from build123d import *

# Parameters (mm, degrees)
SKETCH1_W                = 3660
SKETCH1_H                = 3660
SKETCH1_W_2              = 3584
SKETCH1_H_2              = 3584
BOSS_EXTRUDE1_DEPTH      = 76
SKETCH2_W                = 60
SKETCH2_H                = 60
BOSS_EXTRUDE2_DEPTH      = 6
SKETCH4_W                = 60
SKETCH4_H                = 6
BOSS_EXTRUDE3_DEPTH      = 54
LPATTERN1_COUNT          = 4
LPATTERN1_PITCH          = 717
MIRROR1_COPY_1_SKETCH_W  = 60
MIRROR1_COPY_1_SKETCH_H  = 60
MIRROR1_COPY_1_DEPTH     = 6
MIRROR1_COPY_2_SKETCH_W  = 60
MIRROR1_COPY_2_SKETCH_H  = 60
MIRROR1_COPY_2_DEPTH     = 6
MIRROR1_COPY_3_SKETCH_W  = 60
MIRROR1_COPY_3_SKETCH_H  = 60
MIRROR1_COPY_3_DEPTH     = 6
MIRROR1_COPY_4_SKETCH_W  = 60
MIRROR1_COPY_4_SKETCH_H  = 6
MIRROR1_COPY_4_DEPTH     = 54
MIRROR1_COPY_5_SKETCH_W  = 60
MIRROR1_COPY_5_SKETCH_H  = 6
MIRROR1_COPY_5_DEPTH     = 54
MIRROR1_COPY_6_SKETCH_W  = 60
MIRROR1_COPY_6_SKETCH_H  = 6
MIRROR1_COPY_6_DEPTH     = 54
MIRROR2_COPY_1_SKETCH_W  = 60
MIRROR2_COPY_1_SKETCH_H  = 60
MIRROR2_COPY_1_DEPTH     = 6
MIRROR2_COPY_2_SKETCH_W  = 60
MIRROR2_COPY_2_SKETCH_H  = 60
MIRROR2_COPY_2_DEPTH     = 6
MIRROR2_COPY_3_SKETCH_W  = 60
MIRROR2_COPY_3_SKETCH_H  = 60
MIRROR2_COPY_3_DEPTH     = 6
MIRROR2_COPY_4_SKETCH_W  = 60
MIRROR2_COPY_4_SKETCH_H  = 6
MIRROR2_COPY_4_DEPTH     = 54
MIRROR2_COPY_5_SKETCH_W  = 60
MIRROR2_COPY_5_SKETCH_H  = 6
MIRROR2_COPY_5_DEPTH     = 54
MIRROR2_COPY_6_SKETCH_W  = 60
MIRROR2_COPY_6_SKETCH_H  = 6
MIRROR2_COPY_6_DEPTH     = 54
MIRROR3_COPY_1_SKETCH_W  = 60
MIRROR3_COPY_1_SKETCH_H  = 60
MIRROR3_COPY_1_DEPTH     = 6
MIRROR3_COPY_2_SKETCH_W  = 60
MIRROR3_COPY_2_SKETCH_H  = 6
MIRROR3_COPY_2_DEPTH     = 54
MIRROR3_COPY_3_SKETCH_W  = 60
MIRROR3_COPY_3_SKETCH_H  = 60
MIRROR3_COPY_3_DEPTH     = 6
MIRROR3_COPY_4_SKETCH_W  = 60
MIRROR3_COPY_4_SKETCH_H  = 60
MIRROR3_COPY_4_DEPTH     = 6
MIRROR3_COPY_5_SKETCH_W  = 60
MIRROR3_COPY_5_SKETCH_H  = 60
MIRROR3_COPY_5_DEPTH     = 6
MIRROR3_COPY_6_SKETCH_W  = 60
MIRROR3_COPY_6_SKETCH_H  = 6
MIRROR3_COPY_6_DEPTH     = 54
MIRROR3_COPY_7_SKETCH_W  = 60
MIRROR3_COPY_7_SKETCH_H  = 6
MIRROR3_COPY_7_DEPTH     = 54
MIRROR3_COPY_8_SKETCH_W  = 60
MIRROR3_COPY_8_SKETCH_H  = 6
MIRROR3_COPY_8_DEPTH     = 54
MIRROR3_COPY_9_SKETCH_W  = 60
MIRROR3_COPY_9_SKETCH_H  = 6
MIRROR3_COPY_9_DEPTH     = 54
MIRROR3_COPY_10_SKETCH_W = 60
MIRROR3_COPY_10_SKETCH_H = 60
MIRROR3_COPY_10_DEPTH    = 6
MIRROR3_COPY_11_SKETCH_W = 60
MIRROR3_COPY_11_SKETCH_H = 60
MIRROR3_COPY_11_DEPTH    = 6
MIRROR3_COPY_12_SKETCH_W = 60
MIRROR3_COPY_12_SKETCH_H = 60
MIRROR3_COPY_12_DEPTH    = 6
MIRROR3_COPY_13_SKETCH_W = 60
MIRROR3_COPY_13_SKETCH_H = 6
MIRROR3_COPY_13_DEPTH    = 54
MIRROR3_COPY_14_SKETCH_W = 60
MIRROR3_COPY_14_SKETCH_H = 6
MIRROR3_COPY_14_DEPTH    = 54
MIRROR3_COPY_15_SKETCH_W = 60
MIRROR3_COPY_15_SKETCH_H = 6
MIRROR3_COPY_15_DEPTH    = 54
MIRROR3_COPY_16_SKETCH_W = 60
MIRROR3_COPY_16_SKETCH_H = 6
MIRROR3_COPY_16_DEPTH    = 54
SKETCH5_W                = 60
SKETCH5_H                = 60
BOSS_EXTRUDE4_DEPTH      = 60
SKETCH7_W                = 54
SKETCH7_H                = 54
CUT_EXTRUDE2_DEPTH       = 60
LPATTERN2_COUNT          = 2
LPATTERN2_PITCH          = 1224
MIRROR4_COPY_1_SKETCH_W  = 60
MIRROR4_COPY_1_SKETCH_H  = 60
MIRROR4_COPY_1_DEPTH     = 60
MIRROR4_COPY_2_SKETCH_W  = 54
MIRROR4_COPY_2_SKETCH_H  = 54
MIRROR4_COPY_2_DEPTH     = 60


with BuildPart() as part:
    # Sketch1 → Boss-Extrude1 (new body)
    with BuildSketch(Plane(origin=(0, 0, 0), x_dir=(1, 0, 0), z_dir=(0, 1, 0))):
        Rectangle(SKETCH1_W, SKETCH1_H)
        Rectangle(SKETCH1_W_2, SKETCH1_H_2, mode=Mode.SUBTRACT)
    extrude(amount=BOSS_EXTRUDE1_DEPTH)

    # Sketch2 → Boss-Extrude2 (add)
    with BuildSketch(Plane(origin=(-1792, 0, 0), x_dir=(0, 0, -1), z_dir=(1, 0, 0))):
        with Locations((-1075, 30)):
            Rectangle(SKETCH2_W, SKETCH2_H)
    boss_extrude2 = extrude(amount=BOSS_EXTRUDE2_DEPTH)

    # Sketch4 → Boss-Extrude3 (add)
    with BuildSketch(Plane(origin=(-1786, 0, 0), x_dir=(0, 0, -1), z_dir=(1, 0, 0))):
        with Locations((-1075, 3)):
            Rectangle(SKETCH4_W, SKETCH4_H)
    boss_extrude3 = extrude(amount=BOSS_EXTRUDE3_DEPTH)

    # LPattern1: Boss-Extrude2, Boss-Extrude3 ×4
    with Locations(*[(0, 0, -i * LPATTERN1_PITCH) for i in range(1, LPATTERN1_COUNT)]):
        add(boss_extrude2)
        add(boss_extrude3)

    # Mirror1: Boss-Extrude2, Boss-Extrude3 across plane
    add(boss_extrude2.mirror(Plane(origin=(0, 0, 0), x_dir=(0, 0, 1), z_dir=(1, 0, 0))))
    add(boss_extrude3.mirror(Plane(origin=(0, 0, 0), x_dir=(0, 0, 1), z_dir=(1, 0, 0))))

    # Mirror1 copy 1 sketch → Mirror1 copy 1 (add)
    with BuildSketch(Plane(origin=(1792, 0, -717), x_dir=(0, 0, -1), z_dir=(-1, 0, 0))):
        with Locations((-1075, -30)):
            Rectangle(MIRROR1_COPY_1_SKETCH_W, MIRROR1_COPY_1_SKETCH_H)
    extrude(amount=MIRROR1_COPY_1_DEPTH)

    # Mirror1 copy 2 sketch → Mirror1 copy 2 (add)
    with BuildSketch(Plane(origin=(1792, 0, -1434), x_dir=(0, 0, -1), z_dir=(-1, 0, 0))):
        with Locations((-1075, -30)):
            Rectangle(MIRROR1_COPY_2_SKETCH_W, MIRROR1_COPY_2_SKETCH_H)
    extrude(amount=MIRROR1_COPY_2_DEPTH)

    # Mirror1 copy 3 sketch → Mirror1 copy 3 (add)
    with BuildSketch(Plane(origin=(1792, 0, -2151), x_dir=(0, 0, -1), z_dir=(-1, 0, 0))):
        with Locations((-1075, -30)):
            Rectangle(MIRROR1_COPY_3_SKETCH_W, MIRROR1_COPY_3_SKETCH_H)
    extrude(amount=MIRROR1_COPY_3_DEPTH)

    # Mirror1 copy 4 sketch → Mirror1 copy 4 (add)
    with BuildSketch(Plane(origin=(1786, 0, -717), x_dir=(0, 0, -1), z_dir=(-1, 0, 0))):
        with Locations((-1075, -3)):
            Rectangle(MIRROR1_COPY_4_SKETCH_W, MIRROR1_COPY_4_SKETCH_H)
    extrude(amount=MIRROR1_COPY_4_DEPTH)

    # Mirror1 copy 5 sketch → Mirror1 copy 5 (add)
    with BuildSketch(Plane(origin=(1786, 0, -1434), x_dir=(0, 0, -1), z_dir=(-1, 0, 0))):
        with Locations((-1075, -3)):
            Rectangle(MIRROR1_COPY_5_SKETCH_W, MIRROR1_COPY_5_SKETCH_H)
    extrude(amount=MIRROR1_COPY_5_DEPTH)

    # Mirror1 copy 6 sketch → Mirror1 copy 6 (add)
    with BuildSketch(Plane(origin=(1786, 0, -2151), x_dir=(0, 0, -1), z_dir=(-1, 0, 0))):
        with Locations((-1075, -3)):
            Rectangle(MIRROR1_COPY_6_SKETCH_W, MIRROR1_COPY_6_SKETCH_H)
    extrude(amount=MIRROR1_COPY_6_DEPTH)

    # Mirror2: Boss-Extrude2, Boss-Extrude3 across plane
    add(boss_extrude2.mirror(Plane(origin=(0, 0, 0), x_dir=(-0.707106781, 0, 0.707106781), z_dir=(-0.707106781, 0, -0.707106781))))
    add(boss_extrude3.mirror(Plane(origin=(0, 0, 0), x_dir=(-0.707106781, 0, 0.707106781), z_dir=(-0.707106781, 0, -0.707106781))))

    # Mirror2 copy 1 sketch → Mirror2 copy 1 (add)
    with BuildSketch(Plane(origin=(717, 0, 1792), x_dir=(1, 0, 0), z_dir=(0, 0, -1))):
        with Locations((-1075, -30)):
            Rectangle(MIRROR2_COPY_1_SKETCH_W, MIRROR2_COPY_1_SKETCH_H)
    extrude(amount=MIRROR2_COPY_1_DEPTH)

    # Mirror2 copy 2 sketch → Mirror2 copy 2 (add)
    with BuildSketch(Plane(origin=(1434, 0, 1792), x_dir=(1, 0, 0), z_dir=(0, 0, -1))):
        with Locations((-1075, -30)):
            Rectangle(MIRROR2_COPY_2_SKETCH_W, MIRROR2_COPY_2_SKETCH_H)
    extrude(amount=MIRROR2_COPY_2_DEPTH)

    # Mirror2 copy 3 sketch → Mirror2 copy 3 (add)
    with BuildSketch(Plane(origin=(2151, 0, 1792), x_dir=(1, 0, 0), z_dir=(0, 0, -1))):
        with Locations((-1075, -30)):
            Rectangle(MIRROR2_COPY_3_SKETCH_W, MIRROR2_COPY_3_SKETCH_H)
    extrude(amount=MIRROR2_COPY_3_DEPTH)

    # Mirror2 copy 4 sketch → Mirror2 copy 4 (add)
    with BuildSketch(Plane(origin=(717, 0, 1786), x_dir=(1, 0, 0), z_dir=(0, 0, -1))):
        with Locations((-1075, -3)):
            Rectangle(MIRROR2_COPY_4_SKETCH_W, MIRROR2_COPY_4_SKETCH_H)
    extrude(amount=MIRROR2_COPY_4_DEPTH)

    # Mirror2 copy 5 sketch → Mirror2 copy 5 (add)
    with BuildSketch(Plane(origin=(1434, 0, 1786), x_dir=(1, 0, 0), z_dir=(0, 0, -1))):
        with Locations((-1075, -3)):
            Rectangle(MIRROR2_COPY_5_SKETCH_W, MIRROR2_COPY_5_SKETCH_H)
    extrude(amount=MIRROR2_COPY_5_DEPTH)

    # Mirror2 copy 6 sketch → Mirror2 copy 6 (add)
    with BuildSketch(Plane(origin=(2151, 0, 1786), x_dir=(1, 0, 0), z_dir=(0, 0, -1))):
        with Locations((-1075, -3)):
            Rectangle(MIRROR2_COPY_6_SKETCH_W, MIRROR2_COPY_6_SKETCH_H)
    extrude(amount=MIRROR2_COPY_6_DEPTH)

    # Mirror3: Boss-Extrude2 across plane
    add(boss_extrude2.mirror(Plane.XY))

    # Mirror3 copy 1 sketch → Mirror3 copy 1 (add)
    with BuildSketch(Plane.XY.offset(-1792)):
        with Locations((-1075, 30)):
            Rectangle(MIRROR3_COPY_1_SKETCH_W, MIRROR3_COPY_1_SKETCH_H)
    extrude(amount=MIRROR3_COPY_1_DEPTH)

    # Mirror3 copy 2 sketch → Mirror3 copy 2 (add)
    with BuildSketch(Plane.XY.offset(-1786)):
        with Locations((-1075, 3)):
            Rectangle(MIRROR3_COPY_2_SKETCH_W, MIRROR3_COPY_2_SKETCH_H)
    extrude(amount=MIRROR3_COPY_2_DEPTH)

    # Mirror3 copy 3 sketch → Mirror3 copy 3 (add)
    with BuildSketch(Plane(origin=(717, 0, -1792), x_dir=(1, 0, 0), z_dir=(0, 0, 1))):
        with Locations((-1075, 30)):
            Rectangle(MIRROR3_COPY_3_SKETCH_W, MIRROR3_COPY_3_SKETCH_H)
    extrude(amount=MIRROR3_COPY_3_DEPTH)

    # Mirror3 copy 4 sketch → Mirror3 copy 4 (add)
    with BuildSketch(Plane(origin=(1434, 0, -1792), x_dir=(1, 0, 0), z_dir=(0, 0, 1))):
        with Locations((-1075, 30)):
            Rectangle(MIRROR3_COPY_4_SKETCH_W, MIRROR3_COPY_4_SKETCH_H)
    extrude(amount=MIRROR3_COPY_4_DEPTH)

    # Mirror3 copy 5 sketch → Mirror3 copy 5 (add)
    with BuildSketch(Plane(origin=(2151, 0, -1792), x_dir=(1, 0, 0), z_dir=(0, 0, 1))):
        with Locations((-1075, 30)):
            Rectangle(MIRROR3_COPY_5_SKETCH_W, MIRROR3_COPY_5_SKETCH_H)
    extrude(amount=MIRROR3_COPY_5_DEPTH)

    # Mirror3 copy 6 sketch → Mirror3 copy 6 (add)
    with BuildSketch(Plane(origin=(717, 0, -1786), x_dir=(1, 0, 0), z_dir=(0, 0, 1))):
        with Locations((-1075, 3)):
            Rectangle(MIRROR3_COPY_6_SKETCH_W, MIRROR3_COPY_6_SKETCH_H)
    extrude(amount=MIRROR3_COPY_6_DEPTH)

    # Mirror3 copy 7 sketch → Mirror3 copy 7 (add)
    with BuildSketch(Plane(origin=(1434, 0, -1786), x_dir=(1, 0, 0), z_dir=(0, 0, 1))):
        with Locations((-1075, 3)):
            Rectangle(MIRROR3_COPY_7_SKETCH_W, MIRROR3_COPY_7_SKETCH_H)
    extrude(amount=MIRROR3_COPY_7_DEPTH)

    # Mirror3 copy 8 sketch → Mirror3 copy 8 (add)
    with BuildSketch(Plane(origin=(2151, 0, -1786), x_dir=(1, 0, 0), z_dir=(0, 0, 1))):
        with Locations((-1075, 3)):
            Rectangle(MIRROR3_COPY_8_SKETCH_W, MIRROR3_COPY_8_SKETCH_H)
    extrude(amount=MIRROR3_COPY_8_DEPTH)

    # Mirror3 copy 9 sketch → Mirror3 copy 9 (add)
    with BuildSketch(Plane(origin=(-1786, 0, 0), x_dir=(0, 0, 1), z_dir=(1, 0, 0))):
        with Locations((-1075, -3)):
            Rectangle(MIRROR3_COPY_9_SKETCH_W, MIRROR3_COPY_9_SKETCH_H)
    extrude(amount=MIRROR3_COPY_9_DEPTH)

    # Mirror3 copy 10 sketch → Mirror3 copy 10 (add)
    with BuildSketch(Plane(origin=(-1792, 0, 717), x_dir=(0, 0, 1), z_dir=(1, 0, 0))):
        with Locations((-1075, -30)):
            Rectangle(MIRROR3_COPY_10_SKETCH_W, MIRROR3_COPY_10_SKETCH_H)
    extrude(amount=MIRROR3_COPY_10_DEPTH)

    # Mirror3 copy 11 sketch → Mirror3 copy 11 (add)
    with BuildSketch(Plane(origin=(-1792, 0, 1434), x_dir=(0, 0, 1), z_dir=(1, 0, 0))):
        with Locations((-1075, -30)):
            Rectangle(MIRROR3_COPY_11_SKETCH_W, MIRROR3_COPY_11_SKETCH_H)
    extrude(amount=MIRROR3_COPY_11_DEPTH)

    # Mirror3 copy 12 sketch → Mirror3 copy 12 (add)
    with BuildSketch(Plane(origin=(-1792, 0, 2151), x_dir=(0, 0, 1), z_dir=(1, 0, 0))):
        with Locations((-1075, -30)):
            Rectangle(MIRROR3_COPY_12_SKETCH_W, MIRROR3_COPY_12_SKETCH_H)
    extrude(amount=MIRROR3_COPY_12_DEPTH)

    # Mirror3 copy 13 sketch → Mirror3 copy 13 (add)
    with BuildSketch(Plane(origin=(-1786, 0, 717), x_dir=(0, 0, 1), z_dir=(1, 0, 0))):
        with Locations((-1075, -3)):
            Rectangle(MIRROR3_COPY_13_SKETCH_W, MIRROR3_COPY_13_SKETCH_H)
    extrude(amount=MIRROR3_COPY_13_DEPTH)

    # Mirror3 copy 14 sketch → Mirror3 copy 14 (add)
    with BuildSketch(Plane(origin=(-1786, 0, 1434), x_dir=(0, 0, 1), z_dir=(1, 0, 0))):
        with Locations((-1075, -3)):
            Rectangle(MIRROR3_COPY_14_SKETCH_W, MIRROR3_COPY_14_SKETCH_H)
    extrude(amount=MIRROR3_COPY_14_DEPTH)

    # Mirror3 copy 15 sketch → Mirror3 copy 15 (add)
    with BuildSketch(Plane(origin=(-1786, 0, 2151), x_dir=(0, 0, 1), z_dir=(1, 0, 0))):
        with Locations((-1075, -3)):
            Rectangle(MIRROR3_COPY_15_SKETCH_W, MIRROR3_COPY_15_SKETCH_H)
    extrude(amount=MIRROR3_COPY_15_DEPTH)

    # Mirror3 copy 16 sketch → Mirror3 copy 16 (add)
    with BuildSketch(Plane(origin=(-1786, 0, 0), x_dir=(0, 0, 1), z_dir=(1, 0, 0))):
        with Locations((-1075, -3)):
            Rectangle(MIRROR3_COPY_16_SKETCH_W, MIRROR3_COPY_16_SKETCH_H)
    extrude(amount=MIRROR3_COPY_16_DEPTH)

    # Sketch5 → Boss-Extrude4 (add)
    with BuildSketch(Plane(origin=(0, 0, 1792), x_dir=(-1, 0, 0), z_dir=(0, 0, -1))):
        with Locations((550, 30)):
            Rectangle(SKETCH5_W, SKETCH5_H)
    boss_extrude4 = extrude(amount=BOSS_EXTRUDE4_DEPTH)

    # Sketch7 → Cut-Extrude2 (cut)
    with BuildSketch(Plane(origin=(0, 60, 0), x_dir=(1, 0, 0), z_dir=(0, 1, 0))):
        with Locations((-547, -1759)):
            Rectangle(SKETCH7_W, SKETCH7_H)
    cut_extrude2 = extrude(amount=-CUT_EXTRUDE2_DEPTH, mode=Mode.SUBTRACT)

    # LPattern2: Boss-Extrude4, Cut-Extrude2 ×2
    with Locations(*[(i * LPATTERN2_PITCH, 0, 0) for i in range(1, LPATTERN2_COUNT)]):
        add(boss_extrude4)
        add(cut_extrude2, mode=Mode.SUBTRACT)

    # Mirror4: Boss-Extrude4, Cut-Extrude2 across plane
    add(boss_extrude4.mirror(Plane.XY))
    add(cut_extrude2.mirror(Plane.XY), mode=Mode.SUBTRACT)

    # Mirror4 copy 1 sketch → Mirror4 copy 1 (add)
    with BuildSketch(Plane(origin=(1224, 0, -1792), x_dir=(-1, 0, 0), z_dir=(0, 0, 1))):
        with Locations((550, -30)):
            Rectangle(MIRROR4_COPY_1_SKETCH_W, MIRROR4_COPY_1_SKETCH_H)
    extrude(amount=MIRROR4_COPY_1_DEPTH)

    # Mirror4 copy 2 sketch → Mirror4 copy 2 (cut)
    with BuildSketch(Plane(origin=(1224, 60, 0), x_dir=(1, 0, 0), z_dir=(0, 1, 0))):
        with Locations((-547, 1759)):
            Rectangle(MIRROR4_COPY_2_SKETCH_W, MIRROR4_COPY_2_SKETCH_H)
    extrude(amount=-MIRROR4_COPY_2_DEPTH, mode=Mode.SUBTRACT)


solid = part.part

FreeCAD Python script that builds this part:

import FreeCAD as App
import Part
import Sketcher
from FreeCAD import Vector
Q = App.Units.Quantity


def add_polygon(sketch, points):
    """Adds a closed chain of lines whose ends are joined by coincident constraints."""
    first, n = sketch.GeometryCount, len(points)
    for a, b in zip(points, points[1:] + points[:1]):
        sketch.addGeometry(Part.LineSegment(App.Vector(*a, 0), App.Vector(*b, 0)), False)
    for i in range(n):
        sketch.addConstraint(Sketcher.Constraint("Coincident", first + i, 2, first + (i + 1) % n, 1))

doc = App.newDocument("Part")
body = doc.addObject("PartDesign::Body", "Body")

sketch1 = doc.addObject("Sketcher::SketchObject", "Sketch")
body.addObject(sketch1)
sketch1.AttachmentSupport = (doc.XZ_Plane, [""])
sketch1.MapMode = "FlatFace"
add_polygon(sketch1, [(-1830, -1830), (-1830, 1830), (1830, 1830), (1830, -1830)])
add_polygon(sketch1, [(1792, 1792), (-1792, 1792), (-1792, -1792), (1792, -1792)])
sketch1.addConstraint(Sketcher.Constraint("Vertical", 0))
sketch1.addConstraint(Sketcher.Constraint("Horizontal", 1))
sketch1.addConstraint(Sketcher.Constraint("Vertical", 2))
sketch1.addConstraint(Sketcher.Constraint("Horizontal", 3))
sketch1.addConstraint(Sketcher.Constraint("Horizontal", 4))
sketch1.addConstraint(Sketcher.Constraint("Vertical", 5))
sketch1.addConstraint(Sketcher.Constraint("Horizontal", 6))
sketch1.addConstraint(Sketcher.Constraint("Vertical", 7))
sketch1.addConstraint(Sketcher.Constraint("Symmetric", 0, 2, 2, 2, -1, 1))
sketch1.addConstraint(Sketcher.Constraint("Symmetric", 4, 2, 6, 2, -1, 1))
sketch1.addConstraint(Sketcher.Constraint("Equal", 3, 0))
sketch1.addConstraint(Sketcher.Constraint("Equal", 6, 5))
sketch1.addConstraint(Sketcher.Constraint("DistanceX", 1, 1, 1, 2, Q("3660 mm")))
sketch1.addConstraint(Sketcher.Constraint("DistanceX", 4, 2, 4, 1, Q("3584 mm")))
pad1 = doc.addObject("PartDesign::Pad", "Pad")
body.addObject(pad1)
pad1.Profile = sketch1
pad1.Length = 76
pad1.Reversed = True

sketch2 = doc.addObject("Sketcher::SketchObject", "Sketch001")
body.addObject(sketch2)
sketch2.AttachmentSupport = (doc.YZ_Plane, [""])
sketch2.MapMode = "FlatFace"
sketch2.AttachmentOffset = App.Placement(Vector(0, 0, -1792), App.Rotation())
add_polygon(sketch2, [(60, 1105), (0, 1105), (0, 1045), (60, 1045)])
sketch2.addConstraint(Sketcher.Constraint("Horizontal", 0))
sketch2.addConstraint(Sketcher.Constraint("Vertical", 1))
sketch2.addConstraint(Sketcher.Constraint("Horizontal", 2))
sketch2.addConstraint(Sketcher.Constraint("Vertical", 3))
sketch2.addConstraint(Sketcher.Constraint("PointOnObject", 0, 2, -2))
sketch2.addConstraint(Sketcher.Constraint("Equal", 2, 1))
sketch2.addConstraint(Sketcher.Constraint("DistanceX", 0, 2, 0, 1, Q("60 mm")))
sketch2.addConstraint(Sketcher.Constraint("DistanceY", -1, 1, 0, 2, Q("1105 mm")))
pad2 = doc.addObject("PartDesign::Pad", "Pad001")
body.addObject(pad2)
pad2.Profile = sketch2
pad2.Length = 6

sketch3 = doc.addObject("Sketcher::SketchObject", "Sketch002")
body.addObject(sketch3)
sketch3.AttachmentSupport = (doc.YZ_Plane, [""])
sketch3.MapMode = "FlatFace"
sketch3.AttachmentOffset = App.Placement(Vector(0, 0, -1786), App.Rotation())
add_polygon(sketch3, [(6, 1105), (0, 1105), (0, 1045), (6, 1045)])
sketch3.addConstraint(Sketcher.Constraint("Horizontal", 0))
sketch3.addConstraint(Sketcher.Constraint("Vertical", 1))
sketch3.addConstraint(Sketcher.Constraint("Horizontal", 2))
sketch3.addConstraint(Sketcher.Constraint("Vertical", 3))
sketch3.addConstraint(Sketcher.Constraint("PointOnObject", 0, 2, -2))
sketch3.addConstraint(Sketcher.Constraint("DistanceX", 0, 2, 0, 1, Q("6 mm")))
sketch3.addConstraint(Sketcher.Constraint("DistanceY", 1, 2, 1, 1, Q("60 mm")))
sketch3.addConstraint(Sketcher.Constraint("DistanceY", -1, 1, 0, 2, Q("1105 mm")))
pad3 = doc.addObject("PartDesign::Pad", "Pad002")
body.addObject(pad3)
pad3.Profile = sketch3
pad3.Length = 54
doc.recompute()

linearpattern = doc.addObject("PartDesign::LinearPattern", "LinearPattern")
body.addObject(linearpattern)
linearpattern.Originals = [pad2, pad3]
linearpattern.Direction = (doc.Z_Axis, [""])
linearpattern.Mode = "offset"
linearpattern.Offset = 717
linearpattern.Occurrences = 4
linearpattern.Reversed = True
body.Tip = linearpattern
doc.recompute()

mirrored = doc.addObject("PartDesign::Mirrored", "Mirrored")
body.addObject(mirrored)
mirrored.Originals = [pad2, pad3]
mirrored.MirrorPlane = (doc.YZ_Plane, [""])
body.Tip = mirrored

sketch4 = doc.addObject("Sketcher::SketchObject", "Sketch003")
body.addObject(sketch4)
sketch4.AttachmentSupport = (doc.YZ_Plane, [""])
sketch4.MapMode = "FlatFace"
sketch4.AttachmentOffset = App.Placement(Vector(0, 0, 1792), App.Rotation())
add_polygon(sketch4, [(0, 388), (60, 388), (60, 328), (0, 328)])
sketch4.addConstraint(Sketcher.Constraint("Horizontal", 0))
sketch4.addConstraint(Sketcher.Constraint("Vertical", 1))
sketch4.addConstraint(Sketcher.Constraint("Horizontal", 2))
sketch4.addConstraint(Sketcher.Constraint("Vertical", 3))
sketch4.addConstraint(Sketcher.Constraint("PointOnObject", 2, 2, -2))
sketch4.addConstraint(Sketcher.Constraint("Equal", 2, 1))
sketch4.addConstraint(Sketcher.Constraint("DistanceX", 0, 1, 0, 2, Q("60 mm")))
sketch4.addConstraint(Sketcher.Constraint("DistanceY", -1, 1, 0, 2, Q("388 mm")))
pad4 = doc.addObject("PartDesign::Pad", "Pad003")
body.addObject(pad4)
pad4.Profile = sketch4
pad4.Length = 6
pad4.Reversed = True

sketch5 = doc.addObject("Sketcher::SketchObject", "Sketch004")
body.addObject(sketch5)
sketch5.AttachmentSupport = (doc.YZ_Plane, [""])
sketch5.MapMode = "FlatFace"
sketch5.AttachmentOffset = App.Placement(Vector(0, 0, 1792), App.Rotation())
add_polygon(sketch5, [(0, -329), (60, -329), (60, -389), (0, -389)])
sketch5.addConstraint(Sketcher.Constraint("Horizontal", 0))
sketch5.addConstraint(Sketcher.Constraint("Vertical", 1))
sketch5.addConstraint(Sketcher.Constraint("Horizontal", 2))
sketch5.addConstraint(Sketcher.Constraint("Vertical", 3))
sketch5.addConstraint(Sketcher.Constraint("PointOnObject", 2, 2, -2))
sketch5.addConstraint(Sketcher.Constraint("Equal", 2, 1))
sketch5.addConstraint(Sketcher.Constraint("DistanceX", 0, 1, 0, 2, Q("60 mm")))
sketch5.addConstraint(Sketcher.Constraint("DistanceY", 0, 2, -1, 1, Q("329 mm")))
pad5 = doc.addObject("PartDesign::Pad", "Pad004")
body.addObject(pad5)
pad5.Profile = sketch5
pad5.Length = 6
pad5.Reversed = True

sketch6 = doc.addObject("Sketcher::SketchObject", "Sketch005")
body.addObject(sketch6)
sketch6.AttachmentSupport = (doc.YZ_Plane, [""])
sketch6.MapMode = "FlatFace"
sketch6.AttachmentOffset = App.Placement(Vector(0, 0, 1792), App.Rotation())
add_polygon(sketch6, [(0, -1046), (60, -1046), (60, -1106), (0, -1106)])
sketch6.addConstraint(Sketcher.Constraint("Horizontal", 0))
sketch6.addConstraint(Sketcher.Constraint("Vertical", 1))
sketch6.addConstraint(Sketcher.Constraint("Horizontal", 2))
sketch6.addConstraint(Sketcher.Constraint("Vertical", 3))
sketch6.addConstraint(Sketcher.Constraint("PointOnObject", 2, 2, -2))
sketch6.addConstraint(Sketcher.Constraint("Equal", 2, 1))
sketch6.addConstraint(Sketcher.Constraint("DistanceX", 0, 1, 0, 2, Q("60 mm")))
sketch6.addConstraint(Sketcher.Constraint("DistanceY", 0, 2, -1, 1, Q("1046 mm")))
pad6 = doc.addObject("PartDesign::Pad", "Pad005")
body.addObject(pad6)
pad6.Profile = sketch6
pad6.Length = 6
pad6.Reversed = True

sketch7 = doc.addObject("Sketcher::SketchObject", "Sketch006")
body.addObject(sketch7)
sketch7.AttachmentSupport = (doc.YZ_Plane, [""])
sketch7.MapMode = "FlatFace"
sketch7.AttachmentOffset = App.Placement(Vector(0, 0, 1786), App.Rotation())
add_polygon(sketch7, [(0, 388), (6, 388), (6, 328), (0, 328)])
sketch7.addConstraint(Sketcher.Constraint("Horizontal", 0))
sketch7.addConstraint(Sketcher.Constraint("Vertical", 1))
sketch7.addConstraint(Sketcher.Constraint("Horizontal", 2))
sketch7.addConstraint(Sketcher.Constraint("Vertical", 3))
sketch7.addConstraint(Sketcher.Constraint("PointOnObject", 2, 2, -2))
sketch7.addConstraint(Sketcher.Constraint("DistanceX", 0, 1, 0, 2, Q("6 mm")))
sketch7.addConstraint(Sketcher.Constraint("DistanceY", 1, 2, 1, 1, Q("60 mm")))
sketch7.addConstraint(Sketcher.Constraint("DistanceY", -1, 1, 0, 2, Q("388 mm")))
pad7 = doc.addObject("PartDesign::Pad", "Pad006")
body.addObject(pad7)
pad7.Profile = sketch7
pad7.Length = 54
pad7.Reversed = True

sketch8 = doc.addObject("Sketcher::SketchObject", "Sketch007")
body.addObject(sketch8)
sketch8.AttachmentSupport = (doc.YZ_Plane, [""])
sketch8.MapMode = "FlatFace"
sketch8.AttachmentOffset = App.Placement(Vector(0, 0, 1786), App.Rotation())
add_polygon(sketch8, [(0, -329), (6, -329), (6, -389), (0, -389)])
sketch8.addConstraint(Sketcher.Constraint("Horizontal", 0))
sketch8.addConstraint(Sketcher.Constraint("Vertical", 1))
sketch8.addConstraint(Sketcher.Constraint("Horizontal", 2))
sketch8.addConstraint(Sketcher.Constraint("Vertical", 3))
sketch8.addConstraint(Sketcher.Constraint("PointOnObject", 2, 2, -2))
sketch8.addConstraint(Sketcher.Constraint("DistanceX", 0, 1, 0, 2, Q("6 mm")))
sketch8.addConstraint(Sketcher.Constraint("DistanceY", 1, 2, 1, 1, Q("60 mm")))
sketch8.addConstraint(Sketcher.Constraint("DistanceY", 0, 2, -1, 1, Q("329 mm")))
pad8 = doc.addObject("PartDesign::Pad", "Pad007")
body.addObject(pad8)
pad8.Profile = sketch8
pad8.Length = 54
pad8.Reversed = True

sketch9 = doc.addObject("Sketcher::SketchObject", "Sketch008")
body.addObject(sketch9)
sketch9.AttachmentSupport = (doc.YZ_Plane, [""])
sketch9.MapMode = "FlatFace"
sketch9.AttachmentOffset = App.Placement(Vector(0, 0, 1786), App.Rotation())
add_polygon(sketch9, [(0, -1046), (6, -1046), (6, -1106), (0, -1106)])
sketch9.addConstraint(Sketcher.Constraint("Horizontal", 0))
sketch9.addConstraint(Sketcher.Constraint("Vertical", 1))
sketch9.addConstraint(Sketcher.Constraint("Horizontal", 2))
sketch9.addConstraint(Sketcher.Constraint("Vertical", 3))
sketch9.addConstraint(Sketcher.Constraint("PointOnObject", 2, 2, -2))
sketch9.addConstraint(Sketcher.Constraint("DistanceX", 0, 1, 0, 2, Q("6 mm")))
sketch9.addConstraint(Sketcher.Constraint("DistanceY", 1, 2, 1, 1, Q("60 mm")))
sketch9.addConstraint(Sketcher.Constraint("DistanceY", 0, 2, -1, 1, Q("1046 mm")))
pad9 = doc.addObject("PartDesign::Pad", "Pad008")
body.addObject(pad9)
pad9.Profile = sketch9
pad9.Length = 54
pad9.Reversed = True
doc.recompute()

datumplane = doc.addObject("PartDesign::Plane", "DatumPlane")
body.addObject(datumplane)
datumplane.Placement = App.Placement(Vector(0, 0, 0), App.Rotation(Vector(0.707106781, 0, -0.707106781), Vector(0, -1, 0), Vector(-0.707106781, 0, -0.707106781), "ZXY"))
mirrored2 = doc.addObject("PartDesign::Mirrored", "Mirrored001")
body.addObject(mirrored2)
mirrored2.Originals = [pad2, pad3]
mirrored2.MirrorPlane = (datumplane, [""])
body.Tip = mirrored2

sketch10 = doc.addObject("Sketcher::SketchObject", "Sketch009")
body.addObject(sketch10)
sketch10.AttachmentSupport = (doc.XY_Plane, [""])
sketch10.MapMode = "FlatFace"
sketch10.AttachmentOffset = App.Placement(Vector(0, 0, 1792), App.Rotation())
add_polygon(sketch10, [(-388, 0), (-388, 60), (-328, 60), (-328, 0)])
sketch10.addConstraint(Sketcher.Constraint("Vertical", 0))
sketch10.addConstraint(Sketcher.Constraint("Horizontal", 1))
sketch10.addConstraint(Sketcher.Constraint("Vertical", 2))
sketch10.addConstraint(Sketcher.Constraint("Horizontal", 3))
sketch10.addConstraint(Sketcher.Constraint("PointOnObject", 2, 2, -1))
sketch10.addConstraint(Sketcher.Constraint("Equal", 3, 0))
sketch10.addConstraint(Sketcher.Constraint("DistanceX", 1, 1, 1, 2, Q("60 mm")))
sketch10.addConstraint(Sketcher.Constraint("DistanceX", 0, 2, -1, 1, Q("388 mm")))
pad10 = doc.addObject("PartDesign::Pad", "Pad009")
body.addObject(pad10)
pad10.Profile = sketch10
pad10.Length = 6
pad10.Reversed = True

sketch11 = doc.addObject("Sketcher::SketchObject", "Sketch010")
body.addObject(sketch11)
sketch11.AttachmentSupport = (doc.XY_Plane, [""])
sketch11.MapMode = "FlatFace"
sketch11.AttachmentOffset = App.Placement(Vector(0, 0, 1792), App.Rotation())
add_polygon(sketch11, [(329, 0), (329, 60), (389, 60), (389, 0)])
sketch11.addConstraint(Sketcher.Constraint("Vertical", 0))
sketch11.addConstraint(Sketcher.Constraint("Horizontal", 1))
sketch11.addConstraint(Sketcher.Constraint("Vertical", 2))
sketch11.addConstraint(Sketcher.Constraint("Horizontal", 3))
sketch11.addConstraint(Sketcher.Constraint("PointOnObject", 2, 2, -1))
sketch11.addConstraint(Sketcher.Constraint("Equal", 3, 0))
sketch11.addConstraint(Sketcher.Constraint("DistanceX", 1, 1, 1, 2, Q("60 mm")))
sketch11.addConstraint(Sketcher.Constraint("DistanceX", -1, 1, 0, 2, Q("329 mm")))
pad11 = doc.addObject("PartDesign::Pad", "Pad010")
body.addObject(pad11)
pad11.Profile = sketch11
pad11.Length = 6
pad11.Reversed = True

sketch12 = doc.addObject("Sketcher::SketchObject", "Sketch011")
body.addObject(sketch12)
sketch12.AttachmentSupport = (doc.XY_Plane, [""])
sketch12.MapMode = "FlatFace"
sketch12.AttachmentOffset = App.Placement(Vector(0, 0, 1792), App.Rotation())
add_polygon(sketch12, [(1046, 0), (1046, 60), (1106, 60), (1106, 0)])
sketch12.addConstraint(Sketcher.Constraint("Vertical", 0))
sketch12.addConstraint(Sketcher.Constraint("Horizontal", 1))
sketch12.addConstraint(Sketcher.Constraint("Vertical", 2))
sketch12.addConstraint(Sketcher.Constraint("Horizontal", 3))
sketch12.addConstraint(Sketcher.Constraint("PointOnObject", 2, 2, -1))
sketch12.addConstraint(Sketcher.Constraint("Equal", 3, 0))
sketch12.addConstraint(Sketcher.Constraint("DistanceX", 1, 1, 1, 2, Q("60 mm")))
sketch12.addConstraint(Sketcher.Constraint("DistanceX", -1, 1, 0, 2, Q("1046 mm")))
pad12 = doc.addObject("PartDesign::Pad", "Pad011")
body.addObject(pad12)
pad12.Profile = sketch12
pad12.Length = 6
pad12.Reversed = True

sketch13 = doc.addObject("Sketcher::SketchObject", "Sketch012")
body.addObject(sketch13)
sketch13.AttachmentSupport = (doc.XY_Plane, [""])
sketch13.MapMode = "FlatFace"
sketch13.AttachmentOffset = App.Placement(Vector(0, 0, 1786), App.Rotation())
add_polygon(sketch13, [(-388, 0), (-388, 6), (-328, 6), (-328, 0)])
sketch13.addConstraint(Sketcher.Constraint("Vertical", 0))
sketch13.addConstraint(Sketcher.Constraint("Horizontal", 1))
sketch13.addConstraint(Sketcher.Constraint("Vertical", 2))
sketch13.addConstraint(Sketcher.Constraint("Horizontal", 3))
sketch13.addConstraint(Sketcher.Constraint("PointOnObject", 2, 2, -1))
sketch13.addConstraint(Sketcher.Constraint("DistanceX", 1, 1, 1, 2, Q("60 mm")))
sketch13.addConstraint(Sketcher.Constraint("DistanceY", 0, 1, 0, 2, Q("6 mm")))
sketch13.addConstraint(Sketcher.Constraint("DistanceX", 0, 2, -1, 1, Q("388 mm")))
pad13 = doc.addObject("PartDesign::Pad", "Pad012")
body.addObject(pad13)
pad13.Profile = sketch13
pad13.Length = 54
pad13.Reversed = True

sketch14 = doc.addObject("Sketcher::SketchObject", "Sketch013")
body.addObject(sketch14)
sketch14.AttachmentSupport = (doc.XY_Plane, [""])
sketch14.MapMode = "FlatFace"
sketch14.AttachmentOffset = App.Placement(Vector(0, 0, 1786), App.Rotation())
add_polygon(sketch14, [(329, 0), (329, 6), (389, 6), (389, 0)])
sketch14.addConstraint(Sketcher.Constraint("Vertical", 0))
sketch14.addConstraint(Sketcher.Constraint("Horizontal", 1))
sketch14.addConstraint(Sketcher.Constraint("Vertical", 2))
sketch14.addConstraint(Sketcher.Constraint("Horizontal", 3))
sketch14.addConstraint(Sketcher.Constraint("PointOnObject", 2, 2, -1))
sketch14.addConstraint(Sketcher.Constraint("DistanceX", 1, 1, 1, 2, Q("60 mm")))
sketch14.addConstraint(Sketcher.Constraint("DistanceY", 0, 1, 0, 2, Q("6 mm")))
sketch14.addConstraint(Sketcher.Constraint("DistanceX", -1, 1, 0, 2, Q("329 mm")))
pad14 = doc.addObject("PartDesign::Pad", "Pad013")
body.addObject(pad14)
pad14.Profile = sketch14
pad14.Length = 54
pad14.Reversed = True

sketch15 = doc.addObject("Sketcher::SketchObject", "Sketch014")
body.addObject(sketch15)
sketch15.AttachmentSupport = (doc.XY_Plane, [""])
sketch15.MapMode = "FlatFace"
sketch15.AttachmentOffset = App.Placement(Vector(0, 0, 1786), App.Rotation())
add_polygon(sketch15, [(1046, 0), (1046, 6), (1106, 6), (1106, 0)])
sketch15.addConstraint(Sketcher.Constraint("Vertical", 0))
sketch15.addConstraint(Sketcher.Constraint("Horizontal", 1))
sketch15.addConstraint(Sketcher.Constraint("Vertical", 2))
sketch15.addConstraint(Sketcher.Constraint("Horizontal", 3))
sketch15.addConstraint(Sketcher.Constraint("PointOnObject", 2, 2, -1))
sketch15.addConstraint(Sketcher.Constraint("DistanceX", 1, 1, 1, 2, Q("60 mm")))
sketch15.addConstraint(Sketcher.Constraint("DistanceY", 0, 1, 0, 2, Q("6 mm")))
sketch15.addConstraint(Sketcher.Constraint("DistanceX", -1, 1, 0, 2, Q("1046 mm")))
pad15 = doc.addObject("PartDesign::Pad", "Pad014")
body.addObject(pad15)
pad15.Profile = sketch15
pad15.Length = 54
pad15.Reversed = True
doc.recompute()

mirrored3 = doc.addObject("PartDesign::Mirrored", "Mirrored002")
body.addObject(mirrored3)
mirrored3.Originals = [pad2]
mirrored3.MirrorPlane = (doc.XY_Plane, [""])
body.Tip = mirrored3

sketch16 = doc.addObject("Sketcher::SketchObject", "Sketch015")
body.addObject(sketch16)
sketch16.AttachmentSupport = (doc.XY_Plane, [""])
sketch16.MapMode = "FlatFace"
sketch16.AttachmentOffset = App.Placement(Vector(0, 0, -1792), App.Rotation())
add_polygon(sketch16, [(-1105, 60), (-1105, 0), (-1045, 0), (-1045, 60)])
sketch16.addConstraint(Sketcher.Constraint("Vertical", 0))
sketch16.addConstraint(Sketcher.Constraint("Horizontal", 1))
sketch16.addConstraint(Sketcher.Constraint("Vertical", 2))
sketch16.addConstraint(Sketcher.Constraint("Horizontal", 3))
sketch16.addConstraint(Sketcher.Constraint("PointOnObject", 0, 2, -1))
sketch16.addConstraint(Sketcher.Constraint("Equal", 3, 0))
sketch16.addConstraint(Sketcher.Constraint("DistanceX", 1, 1, 1, 2, Q("60 mm")))
sketch16.addConstraint(Sketcher.Constraint("DistanceX", 0, 2, -1, 1, Q("1105 mm")))
pad16 = doc.addObject("PartDesign::Pad", "Pad015")
body.addObject(pad16)
pad16.Profile = sketch16
pad16.Length = 6

sketch17 = doc.addObject("Sketcher::SketchObject", "Sketch016")
body.addObject(sketch17)
sketch17.AttachmentSupport = (doc.XY_Plane, [""])
sketch17.MapMode = "FlatFace"
sketch17.AttachmentOffset = App.Placement(Vector(0, 0, -1786), App.Rotation())
add_polygon(sketch17, [(-1105, 6), (-1105, 0), (-1045, 0), (-1045, 6)])
sketch17.addConstraint(Sketcher.Constraint("Vertical", 0))
sketch17.addConstraint(Sketcher.Constraint("Horizontal", 1))
sketch17.addConstraint(Sketcher.Constraint("Vertical", 2))
sketch17.addConstraint(Sketcher.Constraint("Horizontal", 3))
sketch17.addConstraint(Sketcher.Constraint("PointOnObject", 0, 2, -1))
sketch17.addConstraint(Sketcher.Constraint("DistanceX", 1, 1, 1, 2, Q("60 mm")))
sketch17.addConstraint(Sketcher.Constraint("DistanceY", 0, 2, 0, 1, Q("6 mm")))
sketch17.addConstraint(Sketcher.Constraint("DistanceX", 0, 2, -1, 1, Q("1105 mm")))
pad17 = doc.addObject("PartDesign::Pad", "Pad016")
body.addObject(pad17)
pad17.Profile = sketch17
pad17.Length = 54

sketch18 = doc.addObject("Sketcher::SketchObject", "Sketch017")
body.addObject(sketch18)
sketch18.AttachmentSupport = (doc.XY_Plane, [""])
sketch18.MapMode = "FlatFace"
sketch18.AttachmentOffset = App.Placement(Vector(0, 0, -1792), App.Rotation())
add_polygon(sketch18, [(-388, 60), (-388, 0), (-328, 0), (-328, 60)])
sketch18.addConstraint(Sketcher.Constraint("Vertical", 0))
sketch18.addConstraint(Sketcher.Constraint("Horizontal", 1))
sketch18.addConstraint(Sketcher.Constraint("Vertical", 2))
sketch18.addConstraint(Sketcher.Constraint("Horizontal", 3))
sketch18.addConstraint(Sketcher.Constraint("PointOnObject", 0, 2, -1))
sketch18.addConstraint(Sketcher.Constraint("Equal", 3, 0))
sketch18.addConstraint(Sketcher.Constraint("DistanceX", 1, 1, 1, 2, Q("60 mm")))
sketch18.addConstraint(Sketcher.Constraint("DistanceX", 0, 2, -1, 1, Q("388 mm")))
pad18 = doc.addObject("PartDesign::Pad", "Pad017")
body.addObject(pad18)
pad18.Profile = sketch18
pad18.Length = 6

sketch19 = doc.addObject("Sketcher::SketchObject", "Sketch018")
body.addObject(sketch19)
sketch19.AttachmentSupport = (doc.XY_Plane, [""])
sketch19.MapMode = "FlatFace"
sketch19.AttachmentOffset = App.Placement(Vector(0, 0, -1792), App.Rotation())
add_polygon(sketch19, [(329, 60), (329, 0), (389, 0), (389, 60)])
sketch19.addConstraint(Sketcher.Constraint("Vertical", 0))
sketch19.addConstraint(Sketcher.Constraint("Horizontal", 1))
sketch19.addConstraint(Sketcher.Constraint("Vertical", 2))
sketch19.addConstraint(Sketcher.Constraint("Horizontal", 3))
sketch19.addConstraint(Sketcher.Constraint("PointOnObject", 0, 2, -1))
sketch19.addConstraint(Sketcher.Constraint("Equal", 3, 0))
sketch19.addConstraint(Sketcher.Constraint("DistanceX", 1, 1, 1, 2, Q("60 mm")))
sketch19.addConstraint(Sketcher.Constraint("DistanceX", -1, 1, 0, 2, Q("329 mm")))
pad19 = doc.addObject("PartDesign::Pad", "Pad018")
body.addObject(pad19)
pad19.Profile = sketch19
pad19.Length = 6

sketch20 = doc.addObject("Sketcher::SketchObject", "Sketch019")
body.addObject(sketch20)
sketch20.AttachmentSupport = (doc.XY_Plane, [""])
sketch20.MapMode = "FlatFace"
sketch20.AttachmentOffset = App.Placement(Vector(0, 0, -1792), App.Rotation())
add_polygon(sketch20, [(1046, 60), (1046, 0), (1106, 0), (1106, 60)])
sketch20.addConstraint(Sketcher.Constraint("Vertical", 0))
sketch20.addConstraint(Sketcher.Constraint("Horizontal", 1))
sketch20.addConstraint(Sketcher.Constraint("Vertical", 2))
sketch20.addConstraint(Sketcher.Constraint("Horizontal", 3))
sketch20.addConstraint(Sketcher.Constraint("PointOnObject", 0, 2, -1))
sketch20.addConstraint(Sketcher.Constraint("Equal", 3, 0))
sketch20.addConstraint(Sketcher.Constraint("DistanceX", 1, 1, 1, 2, Q("60 mm")))
sketch20.addConstraint(Sketcher.Constraint("DistanceX", -1, 1, 0, 2, Q("1046 mm")))
pad20 = doc.addObject("PartDesign::Pad", "Pad019")
body.addObject(pad20)
pad20.Profile = sketch20
pad20.Length = 6

sketch21 = doc.addObject("Sketcher::SketchObject", "Sketch020")
body.addObject(sketch21)
sketch21.AttachmentSupport = (doc.XY_Plane, [""])
sketch21.MapMode = "FlatFace"
sketch21.AttachmentOffset = App.Placement(Vector(0, 0, -1786), App.Rotation())
add_polygon(sketch21, [(-388, 6), (-388, 0), (-328, 0), (-328, 6)])
sketch21.addConstraint(Sketcher.Constraint("Vertical", 0))
sketch21.addConstraint(Sketcher.Constraint("Horizontal", 1))
sketch21.addConstraint(Sketcher.Constraint("Vertical", 2))
sketch21.addConstraint(Sketcher.Constraint("Horizontal", 3))
sketch21.addConstraint(Sketcher.Constraint("PointOnObject", 0, 2, -1))
sketch21.addConstraint(Sketcher.Constraint("DistanceX", 1, 1, 1, 2, Q("60 mm")))
sketch21.addConstraint(Sketcher.Constraint("DistanceY", 0, 2, 0, 1, Q("6 mm")))
sketch21.addConstraint(Sketcher.Constraint("DistanceX", 0, 2, -1, 1, Q("388 mm")))
pad21 = doc.addObject("PartDesign::Pad", "Pad020")
body.addObject(pad21)
pad21.Profile = sketch21
pad21.Length = 54

sketch22 = doc.addObject("Sketcher::SketchObject", "Sketch021")
body.addObject(sketch22)
sketch22.AttachmentSupport = (doc.XY_Plane, [""])
sketch22.MapMode = "FlatFace"
sketch22.AttachmentOffset = App.Placement(Vector(0, 0, -1786), App.Rotation())
add_polygon(sketch22, [(329, 6), (329, 0), (389, 0), (389, 6)])
sketch22.addConstraint(Sketcher.Constraint("Vertical", 0))
sketch22.addConstraint(Sketcher.Constraint("Horizontal", 1))
sketch22.addConstraint(Sketcher.Constraint("Vertical", 2))
sketch22.addConstraint(Sketcher.Constraint("Horizontal", 3))
sketch22.addConstraint(Sketcher.Constraint("PointOnObject", 0, 2, -1))
sketch22.addConstraint(Sketcher.Constraint("DistanceX", 1, 1, 1, 2, Q("60 mm")))
sketch22.addConstraint(Sketcher.Constraint("DistanceY", 0, 2, 0, 1, Q("6 mm")))
sketch22.addConstraint(Sketcher.Constraint("DistanceX", -1, 1, 0, 2, Q("329 mm")))
pad22 = doc.addObject("PartDesign::Pad", "Pad021")
body.addObject(pad22)
pad22.Profile = sketch22
pad22.Length = 54

sketch23 = doc.addObject("Sketcher::SketchObject", "Sketch022")
body.addObject(sketch23)
sketch23.AttachmentSupport = (doc.XY_Plane, [""])
sketch23.MapMode = "FlatFace"
sketch23.AttachmentOffset = App.Placement(Vector(0, 0, -1786), App.Rotation())
add_polygon(sketch23, [(1046, 6), (1046, 0), (1106, 0), (1106, 6)])
sketch23.addConstraint(Sketcher.Constraint("Vertical", 0))
sketch23.addConstraint(Sketcher.Constraint("Horizontal", 1))
sketch23.addConstraint(Sketcher.Constraint("Vertical", 2))
sketch23.addConstraint(Sketcher.Constraint("Horizontal", 3))
sketch23.addConstraint(Sketcher.Constraint("PointOnObject", 0, 2, -1))
sketch23.addConstraint(Sketcher.Constraint("DistanceX", 1, 1, 1, 2, Q("60 mm")))
sketch23.addConstraint(Sketcher.Constraint("DistanceY", 0, 2, 0, 1, Q("6 mm")))
sketch23.addConstraint(Sketcher.Constraint("DistanceX", -1, 1, 0, 2, Q("1046 mm")))
pad23 = doc.addObject("PartDesign::Pad", "Pad022")
body.addObject(pad23)
pad23.Profile = sketch23
pad23.Length = 54

sketch24 = doc.addObject("Sketcher::SketchObject", "Sketch023")
body.addObject(sketch24)
sketch24.AttachmentSupport = (doc.YZ_Plane, [""])
sketch24.MapMode = "FlatFace"
sketch24.AttachmentOffset = App.Placement(Vector(0, 0, -1786), App.Rotation())
add_polygon(sketch24, [(0, -1105), (6, -1105), (6, -1045), (0, -1045)])
sketch24.addConstraint(Sketcher.Constraint("Horizontal", 0))
sketch24.addConstraint(Sketcher.Constraint("Vertical", 1))
sketch24.addConstraint(Sketcher.Constraint("Horizontal", 2))
sketch24.addConstraint(Sketcher.Constraint("Vertical", 3))
sketch24.addConstraint(Sketcher.Constraint("PointOnObject", 2, 2, -2))
sketch24.addConstraint(Sketcher.Constraint("DistanceX", 0, 1, 0, 2, Q("6 mm")))
sketch24.addConstraint(Sketcher.Constraint("DistanceY", 1, 1, 1, 2, Q("60 mm")))
sketch24.addConstraint(Sketcher.Constraint("DistanceY", 0, 2, -1, 1, Q("1105 mm")))
pad24 = doc.addObject("PartDesign::Pad", "Pad023")
body.addObject(pad24)
pad24.Profile = sketch24
pad24.Length = 54

sketch25 = doc.addObject("Sketcher::SketchObject", "Sketch024")
body.addObject(sketch25)
sketch25.AttachmentSupport = (doc.YZ_Plane, [""])
sketch25.MapMode = "FlatFace"
sketch25.AttachmentOffset = App.Placement(Vector(0, 0, -1792), App.Rotation())
add_polygon(sketch25, [(0, -388), (60, -388), (60, -328), (0, -328)])
sketch25.addConstraint(Sketcher.Constraint("Horizontal", 0))
sketch25.addConstraint(Sketcher.Constraint("Vertical", 1))
sketch25.addConstraint(Sketcher.Constraint("Horizontal", 2))
sketch25.addConstraint(Sketcher.Constraint("Vertical", 3))
sketch25.addConstraint(Sketcher.Constraint("PointOnObject", 2, 2, -2))
sketch25.addConstraint(Sketcher.Constraint("Equal", 2, 1))
sketch25.addConstraint(Sketcher.Constraint("DistanceX", 0, 1, 0, 2, Q("60 mm")))
sketch25.addConstraint(Sketcher.Constraint("DistanceY", 0, 2, -1, 1, Q("388 mm")))
pad25 = doc.addObject("PartDesign::Pad", "Pad024")
body.addObject(pad25)
pad25.Profile = sketch25
pad25.Length = 6

sketch26 = doc.addObject("Sketcher::SketchObject", "Sketch025")
body.addObject(sketch26)
sketch26.AttachmentSupport = (doc.YZ_Plane, [""])
sketch26.MapMode = "FlatFace"
sketch26.AttachmentOffset = App.Placement(Vector(0, 0, -1792), App.Rotation())
add_polygon(sketch26, [(0, 329), (60, 329), (60, 389), (0, 389)])
sketch26.addConstraint(Sketcher.Constraint("Horizontal", 0))
sketch26.addConstraint(Sketcher.Constraint("Vertical", 1))
sketch26.addConstraint(Sketcher.Constraint("Horizontal", 2))
sketch26.addConstraint(Sketcher.Constraint("Vertical", 3))
sketch26.addConstraint(Sketcher.Constraint("PointOnObject", 2, 2, -2))
sketch26.addConstraint(Sketcher.Constraint("Equal", 2, 1))
sketch26.addConstraint(Sketcher.Constraint("DistanceX", 0, 1, 0, 2, Q("60 mm")))
sketch26.addConstraint(Sketcher.Constraint("DistanceY", -1, 1, 0, 2, Q("329 mm")))
pad26 = doc.addObject("PartDesign::Pad", "Pad025")
body.addObject(pad26)
pad26.Profile = sketch26
pad26.Length = 6

sketch27 = doc.addObject("Sketcher::SketchObject", "Sketch026")
body.addObject(sketch27)
sketch27.AttachmentSupport = (doc.YZ_Plane, [""])
sketch27.MapMode = "FlatFace"
sketch27.AttachmentOffset = App.Placement(Vector(0, 0, -1792), App.Rotation())
add_polygon(sketch27, [(0, 1046), (60, 1046), (60, 1106), (0, 1106)])
sketch27.addConstraint(Sketcher.Constraint("Horizontal", 0))
sketch27.addConstraint(Sketcher.Constraint("Vertical", 1))
sketch27.addConstraint(Sketcher.Constraint("Horizontal", 2))
sketch27.addConstraint(Sketcher.Constraint("Vertical", 3))
sketch27.addConstraint(Sketcher.Constraint("PointOnObject", 2, 2, -2))
sketch27.addConstraint(Sketcher.Constraint("Equal", 2, 1))
sketch27.addConstraint(Sketcher.Constraint("DistanceX", 0, 1, 0, 2, Q("60 mm")))
sketch27.addConstraint(Sketcher.Constraint("DistanceY", -1, 1, 0, 2, Q("1046 mm")))
pad27 = doc.addObject("PartDesign::Pad", "Pad026")
body.addObject(pad27)
pad27.Profile = sketch27
pad27.Length = 6

sketch28 = doc.addObject("Sketcher::SketchObject", "Sketch027")
body.addObject(sketch28)
sketch28.AttachmentSupport = (doc.YZ_Plane, [""])
sketch28.MapMode = "FlatFace"
sketch28.AttachmentOffset = App.Placement(Vector(0, 0, -1786), App.Rotation())
add_polygon(sketch28, [(0, -388), (6, -388), (6, -328), (0, -328)])
sketch28.addConstraint(Sketcher.Constraint("Horizontal", 0))
sketch28.addConstraint(Sketcher.Constraint("Vertical", 1))
sketch28.addConstraint(Sketcher.Constraint("Horizontal", 2))
sketch28.addConstraint(Sketcher.Constraint("Vertical", 3))
sketch28.addConstraint(Sketcher.Constraint("PointOnObject", 2, 2, -2))
sketch28.addConstraint(Sketcher.Constraint("DistanceX", 0, 1, 0, 2, Q("6 mm")))
sketch28.addConstraint(Sketcher.Constraint("DistanceY", 1, 1, 1, 2, Q("60 mm")))
sketch28.addConstraint(Sketcher.Constraint("DistanceY", 0, 2, -1, 1, Q("388 mm")))
pad28 = doc.addObject("PartDesign::Pad", "Pad027")
body.addObject(pad28)
pad28.Profile = sketch28
pad28.Length = 54

sketch29 = doc.addObject("Sketcher::SketchObject", "Sketch028")
body.addObject(sketch29)
sketch29.AttachmentSupport = (doc.YZ_Plane, [""])
sketch29.MapMode = "FlatFace"
sketch29.AttachmentOffset = App.Placement(Vector(0, 0, -1786), App.Rotation())
add_polygon(sketch29, [(0, 329), (6, 329), (6, 389), (0, 389)])
sketch29.addConstraint(Sketcher.Constraint("Horizontal", 0))
sketch29.addConstraint(Sketcher.Constraint("Vertical", 1))
sketch29.addConstraint(Sketcher.Constraint("Horizontal", 2))
sketch29.addConstraint(Sketcher.Constraint("Vertical", 3))
sketch29.addConstraint(Sketcher.Constraint("PointOnObject", 2, 2, -2))
sketch29.addConstraint(Sketcher.Constraint("DistanceX", 0, 1, 0, 2, Q("6 mm")))
sketch29.addConstraint(Sketcher.Constraint("DistanceY", 1, 1, 1, 2, Q("60 mm")))
sketch29.addConstraint(Sketcher.Constraint("DistanceY", -1, 1, 0, 2, Q("329 mm")))
pad29 = doc.addObject("PartDesign::Pad", "Pad028")
body.addObject(pad29)
pad29.Profile = sketch29
pad29.Length = 54

sketch30 = doc.addObject("Sketcher::SketchObject", "Sketch029")
body.addObject(sketch30)
sketch30.AttachmentSupport = (doc.YZ_Plane, [""])
sketch30.MapMode = "FlatFace"
sketch30.AttachmentOffset = App.Placement(Vector(0, 0, -1786), App.Rotation())
add_polygon(sketch30, [(0, 1046), (6, 1046), (6, 1106), (0, 1106)])
sketch30.addConstraint(Sketcher.Constraint("Horizontal", 0))
sketch30.addConstraint(Sketcher.Constraint("Vertical", 1))
sketch30.addConstraint(Sketcher.Constraint("Horizontal", 2))
sketch30.addConstraint(Sketcher.Constraint("Vertical", 3))
sketch30.addConstraint(Sketcher.Constraint("PointOnObject", 2, 2, -2))
sketch30.addConstraint(Sketcher.Constraint("DistanceX", 0, 1, 0, 2, Q("6 mm")))
sketch30.addConstraint(Sketcher.Constraint("DistanceY", 1, 1, 1, 2, Q("60 mm")))
sketch30.addConstraint(Sketcher.Constraint("DistanceY", -1, 1, 0, 2, Q("1046 mm")))
pad30 = doc.addObject("PartDesign::Pad", "Pad029")
body.addObject(pad30)
pad30.Profile = sketch30
pad30.Length = 54

sketch31 = doc.addObject("Sketcher::SketchObject", "Sketch030")
body.addObject(sketch31)
sketch31.AttachmentSupport = (doc.YZ_Plane, [""])
sketch31.MapMode = "FlatFace"
sketch31.AttachmentOffset = App.Placement(Vector(0, 0, -1786), App.Rotation())
add_polygon(sketch31, [(0, -1105), (6, -1105), (6, -1045), (0, -1045)])
sketch31.addConstraint(Sketcher.Constraint("Horizontal", 0))
sketch31.addConstraint(Sketcher.Constraint("Vertical", 1))
sketch31.addConstraint(Sketcher.Constraint("Horizontal", 2))
sketch31.addConstraint(Sketcher.Constraint("Vertical", 3))
sketch31.addConstraint(Sketcher.Constraint("PointOnObject", 2, 2, -2))
sketch31.addConstraint(Sketcher.Constraint("DistanceX", 0, 1, 0, 2, Q("6 mm")))
sketch31.addConstraint(Sketcher.Constraint("DistanceY", 1, 1, 1, 2, Q("60 mm")))
sketch31.addConstraint(Sketcher.Constraint("DistanceY", 0, 2, -1, 1, Q("1105 mm")))
pad31 = doc.addObject("PartDesign::Pad", "Pad030")
body.addObject(pad31)
pad31.Profile = sketch31
pad31.Length = 54

sketch32 = doc.addObject("Sketcher::SketchObject", "Sketch031")
body.addObject(sketch32)
sketch32.AttachmentSupport = (doc.XY_Plane, [""])
sketch32.MapMode = "FlatFace"
sketch32.AttachmentOffset = App.Placement(Vector(0, 0, 1792), App.Rotation())
add_polygon(sketch32, [(-520, 60), (-520, 0), (-580, 0), (-580, 60)])
sketch32.addConstraint(Sketcher.Constraint("Vertical", 0))
sketch32.addConstraint(Sketcher.Constraint("Horizontal", 1))
sketch32.addConstraint(Sketcher.Constraint("Vertical", 2))
sketch32.addConstraint(Sketcher.Constraint("Horizontal", 3))
sketch32.addConstraint(Sketcher.Constraint("PointOnObject", 0, 2, -1))
sketch32.addConstraint(Sketcher.Constraint("Equal", 3, 0))
sketch32.addConstraint(Sketcher.Constraint("DistanceX", 1, 2, 1, 1, Q("60 mm")))
sketch32.addConstraint(Sketcher.Constraint("DistanceX", 0, 2, -1, 1, Q("520 mm")))
pad32 = doc.addObject("PartDesign::Pad", "Pad031")
body.addObject(pad32)
pad32.Profile = sketch32
pad32.Length = 60
pad32.Reversed = True

sketch33 = doc.addObject("Sketcher::SketchObject", "Sketch032")
body.addObject(sketch33)
sketch33.AttachmentSupport = (doc.XZ_Plane, [""])
sketch33.MapMode = "FlatFace"
sketch33.AttachmentOffset = App.Placement(Vector(0, 0, -60), App.Rotation())
add_polygon(sketch33, [(-574, 1732), (-574, 1786), (-520, 1786), (-520, 1732)])
sketch33.addConstraint(Sketcher.Constraint("Vertical", 0))
sketch33.addConstraint(Sketcher.Constraint("Horizontal", 1))
sketch33.addConstraint(Sketcher.Constraint("Vertical", 2))
sketch33.addConstraint(Sketcher.Constraint("Horizontal", 3))
sketch33.addConstraint(Sketcher.Constraint("Equal", 3, 0))
sketch33.addConstraint(Sketcher.Constraint("DistanceX", 1, 1, 1, 2, Q("54 mm")))
sketch33.addConstraint(Sketcher.Constraint("DistanceX", 0, 2, -1, 1, Q("574 mm")))
sketch33.addConstraint(Sketcher.Constraint("DistanceY", -1, 1, 0, 2, Q("1786 mm")))
pocket1 = doc.addObject("PartDesign::Pocket", "Pocket")
body.addObject(pocket1)
pocket1.Profile = sketch33
pocket1.Length = 60
pocket1.Reversed = True
doc.recompute()

linearpattern2 = doc.addObject("PartDesign::LinearPattern", "LinearPattern001")
body.addObject(linearpattern2)
linearpattern2.Originals = [pad32, pocket1]
linearpattern2.Direction = (doc.X_Axis, [""])
linearpattern2.Mode = "offset"
linearpattern2.Offset = 1224
linearpattern2.Occurrences = 2
body.Tip = linearpattern2
doc.recompute()

mirrored4 = doc.addObject("PartDesign::Mirrored", "Mirrored003")
body.addObject(mirrored4)
mirrored4.Originals = [pad32, pocket1]
mirrored4.MirrorPlane = (doc.XY_Plane, [""])
body.Tip = mirrored4

sketch34 = doc.addObject("Sketcher::SketchObject", "Sketch033")
body.addObject(sketch34)
sketch34.AttachmentSupport = (doc.XY_Plane, [""])
sketch34.MapMode = "FlatFace"
sketch34.AttachmentOffset = App.Placement(Vector(0, 0, -1792), App.Rotation())
add_polygon(sketch34, [(704, 0), (704, 60), (644, 60), (644, 0)])
sketch34.addConstraint(Sketcher.Constraint("Vertical", 0))
sketch34.addConstraint(Sketcher.Constraint("Horizontal", 1))
sketch34.addConstraint(Sketcher.Constraint("Vertical", 2))
sketch34.addConstraint(Sketcher.Constraint("Horizontal", 3))
sketch34.addConstraint(Sketcher.Constraint("PointOnObject", 2, 2, -1))
sketch34.addConstraint(Sketcher.Constraint("Equal", 3, 0))
sketch34.addConstraint(Sketcher.Constraint("DistanceX", 1, 2, 1, 1, Q("60 mm")))
sketch34.addConstraint(Sketcher.Constraint("DistanceX", -1, 1, 0, 2, Q("704 mm")))
pad33 = doc.addObject("PartDesign::Pad", "Pad032")
body.addObject(pad33)
pad33.Profile = sketch34
pad33.Length = 60

sketch35 = doc.addObject("Sketcher::SketchObject", "Sketch034")
body.addObject(sketch35)
sketch35.AttachmentSupport = (doc.XZ_Plane, [""])
sketch35.MapMode = "FlatFace"
sketch35.AttachmentOffset = App.Placement(Vector(0, 0, -60), App.Rotation())
add_polygon(sketch35, [(650, -1786), (650, -1732), (704, -1732), (704, -1786)])
sketch35.addConstraint(Sketcher.Constraint("Vertical", 0))
sketch35.addConstraint(Sketcher.Constraint("Horizontal", 1))
sketch35.addConstraint(Sketcher.Constraint("Vertical", 2))
sketch35.addConstraint(Sketcher.Constraint("Horizontal", 3))
sketch35.addConstraint(Sketcher.Constraint("Equal", 3, 0))
sketch35.addConstraint(Sketcher.Constraint("DistanceX", 1, 1, 1, 2, Q("54 mm")))
sketch35.addConstraint(Sketcher.Constraint("DistanceX", -1, 1, 0, 2, Q("650 mm")))
sketch35.addConstraint(Sketcher.Constraint("DistanceY", 0, 2, -1, 1, Q("1732 mm")))
pocket2 = doc.addObject("PartDesign::Pocket", "Pocket001")
body.addObject(pocket2)
pocket2.Profile = sketch35
pocket2.Length = 60
pocket2.Reversed = True

doc.recompute()
